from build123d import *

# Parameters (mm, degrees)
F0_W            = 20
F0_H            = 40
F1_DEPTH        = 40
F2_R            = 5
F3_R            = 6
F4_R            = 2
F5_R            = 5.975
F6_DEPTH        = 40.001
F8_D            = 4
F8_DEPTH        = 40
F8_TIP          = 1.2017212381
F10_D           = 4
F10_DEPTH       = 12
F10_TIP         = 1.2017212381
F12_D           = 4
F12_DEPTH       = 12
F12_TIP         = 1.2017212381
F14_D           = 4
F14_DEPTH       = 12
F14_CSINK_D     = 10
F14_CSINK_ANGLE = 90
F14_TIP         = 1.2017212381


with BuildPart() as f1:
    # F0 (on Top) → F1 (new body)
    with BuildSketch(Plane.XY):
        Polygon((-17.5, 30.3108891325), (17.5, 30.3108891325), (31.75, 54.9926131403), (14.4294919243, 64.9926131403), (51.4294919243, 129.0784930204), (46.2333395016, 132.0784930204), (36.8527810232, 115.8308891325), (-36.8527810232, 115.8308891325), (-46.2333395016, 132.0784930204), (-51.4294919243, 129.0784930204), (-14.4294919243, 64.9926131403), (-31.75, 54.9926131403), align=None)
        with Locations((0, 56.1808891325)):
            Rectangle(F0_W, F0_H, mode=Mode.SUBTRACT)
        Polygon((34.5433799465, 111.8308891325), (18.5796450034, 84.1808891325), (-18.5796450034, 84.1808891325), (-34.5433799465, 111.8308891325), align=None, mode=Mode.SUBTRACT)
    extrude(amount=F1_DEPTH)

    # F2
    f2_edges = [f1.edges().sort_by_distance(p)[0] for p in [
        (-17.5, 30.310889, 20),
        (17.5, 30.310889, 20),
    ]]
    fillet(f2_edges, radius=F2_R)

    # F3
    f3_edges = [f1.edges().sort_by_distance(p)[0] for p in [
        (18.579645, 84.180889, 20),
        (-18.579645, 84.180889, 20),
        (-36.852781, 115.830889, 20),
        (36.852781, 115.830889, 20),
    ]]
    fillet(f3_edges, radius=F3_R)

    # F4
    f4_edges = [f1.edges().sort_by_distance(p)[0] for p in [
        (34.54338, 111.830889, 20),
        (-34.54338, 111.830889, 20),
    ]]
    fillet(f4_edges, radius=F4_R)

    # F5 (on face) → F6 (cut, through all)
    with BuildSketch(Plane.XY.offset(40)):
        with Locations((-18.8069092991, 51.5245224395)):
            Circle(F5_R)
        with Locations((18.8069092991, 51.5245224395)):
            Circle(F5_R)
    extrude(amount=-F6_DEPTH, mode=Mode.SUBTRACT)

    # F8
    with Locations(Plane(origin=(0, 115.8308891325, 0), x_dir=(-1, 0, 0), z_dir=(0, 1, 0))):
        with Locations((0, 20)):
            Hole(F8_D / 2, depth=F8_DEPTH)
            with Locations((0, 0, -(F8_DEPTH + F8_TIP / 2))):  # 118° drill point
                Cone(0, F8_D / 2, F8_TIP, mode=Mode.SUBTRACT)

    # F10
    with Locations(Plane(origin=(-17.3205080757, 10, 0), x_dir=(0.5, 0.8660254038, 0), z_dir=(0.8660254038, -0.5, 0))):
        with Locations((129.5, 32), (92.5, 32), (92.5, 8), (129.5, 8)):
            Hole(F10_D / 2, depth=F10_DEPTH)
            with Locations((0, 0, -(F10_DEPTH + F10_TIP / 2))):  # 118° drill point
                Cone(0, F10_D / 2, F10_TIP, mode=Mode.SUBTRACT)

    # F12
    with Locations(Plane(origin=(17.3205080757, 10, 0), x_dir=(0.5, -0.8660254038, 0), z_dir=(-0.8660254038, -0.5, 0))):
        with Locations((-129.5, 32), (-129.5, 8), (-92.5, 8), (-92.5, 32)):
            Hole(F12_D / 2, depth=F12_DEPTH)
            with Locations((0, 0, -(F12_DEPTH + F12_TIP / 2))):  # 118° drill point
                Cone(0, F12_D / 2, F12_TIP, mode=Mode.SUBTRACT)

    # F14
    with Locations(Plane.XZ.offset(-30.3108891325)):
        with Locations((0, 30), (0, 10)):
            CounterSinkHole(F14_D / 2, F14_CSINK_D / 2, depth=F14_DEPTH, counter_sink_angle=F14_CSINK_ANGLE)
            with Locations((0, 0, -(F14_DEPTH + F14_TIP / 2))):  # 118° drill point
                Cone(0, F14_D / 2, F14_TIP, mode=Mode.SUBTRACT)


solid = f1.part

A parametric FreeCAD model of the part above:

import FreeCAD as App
import Part
import Sketcher

V = App.Vector
Q = App.Units.Quantity


def edges_at(feature, points):
    """Names of the edges that pass closest to the given points."""
    edges = feature.Shape.Edges
    near = lambda p: min(range(len(edges)), key=lambda i: edges[i].distToShape(Part.Vertex(*p))[0])
    return sorted({f"Edge{near(p) + 1}" for p in points})


def add_polygon(sketch, points):
    """Adds a closed chain of lines whose ends are joined by coincident constraints."""
    first, n = sketch.GeometryCount, len(points)
    for a, b in zip(points, points[1:] + points[:1]):
        sketch.addGeometry(Part.LineSegment(App.Vector(*a, 0), App.Vector(*b, 0)), False)
    for i in range(n):
        sketch.addConstraint(Sketcher.Constraint("Coincident", first + i, 2, first + (i + 1) % n, 1))

doc = App.newDocument("Part")
body = doc.addObject("PartDesign::Body", "Body")

sketch1 = doc.addObject("Sketcher::SketchObject", "Sketch")
body.addObject(sketch1)
sketch1.AttachmentSupport = (doc.XY_Plane, [""])
sketch1.MapMode = "FlatFace"
add_polygon(sketch1, [(-17.5, 30.310889), (17.5, 30.310889), (31.75, 54.992613), (14.429492, 64.992613), (51.429492, 129.078493), (46.23334, 132.078493), (36.852781, 115.830889), (-36.852781, 115.830889), (-46.23334, 132.078493), (-51.429492, 129.078493), (-14.429492, 64.992613), (-31.75, 54.992613)])
add_polygon(sketch1, [(10, 36.180889), (-10, 36.180889), (-10, 76.180889), (10, 76.180889)])
add_polygon(sketch1, [(-34.54338, 111.830889), (34.54338, 111.830889), (18.579645, 84.180889), (-18.579645, 84.180889)])
sketch1.addConstraint([
    Sketcher.Constraint("Horizontal", 0),
    Sketcher.Constraint("Horizontal", 6),
    Sketcher.Constraint("Horizontal", 12),
    Sketcher.Constraint("Vertical", 13),
    Sketcher.Constraint("Horizontal", 14),
    Sketcher.Constraint("Vertical", 15),
    Sketcher.Constraint("Horizontal", 16),
    Sketcher.Constraint("Horizontal", 18),
    Sketcher.Constraint("Symmetric", 4, 2, 7, 2, -2),
    Sketcher.Constraint("Symmetric", 3, 2, 8, 2, -2),
    Sketcher.Constraint("Symmetric", 2, 2, 9, 2, -2),
    Sketcher.Constraint("Symmetric", 1, 2, 10, 2, -2),
    Sketcher.Constraint("Perpendicular", 1, 2),
    Sketcher.Constraint("Perpendicular", 2, 3),
    Sketcher.Constraint("Perpendicular", 3, 4),
    Sketcher.Constraint("Perpendicular", 4, 5),
    Sketcher.Constraint("Perpendicular", 7, 8),
    Sketcher.Constraint("Perpendicular", 10, 11),
    Sketcher.Constraint("Parallel", 5, 17),
    Sketcher.Constraint("Parallel", 11, 19),
    Sketcher.Constraint("DistanceX", 0, 1, 0, 2, 35.0),
    Sketcher.Constraint("DistanceX", 12, 2, 12, 1, 20.0),
    Sketcher.Constraint("DistanceY", 13, 1, 13, 2, 40.0),
    Sketcher.Constraint("Angle", 1, Q("60 deg")),
    Sketcher.Constraint("Distance", 2, 20.0),
    Sketcher.Constraint("Distance", 3, 74.0),
    Sketcher.Constraint("Distance", 4, 6.0),
    Sketcher.Constraint("DistanceX", 12, 2, -1, 1, 10.0),
    Sketcher.Constraint("DistanceY", 16, 2, 5, 2, 4.0),
    Sketcher.Constraint("DistanceY", 14, 2, 17, 2, 8.0),
    Sketcher.Constraint("Distance", 1, 28.5),
    Sketcher.Constraint("DistanceY", 0, 2, 5, 2, 85.52),
    Sketcher.Constraint("DistanceY", 11, 2, 12, 2, 5.87),
    Sketcher.Constraint("DistanceX", 16, 1, 16, 2, 69.08676),
    Sketcher.Constraint("DistanceX", 16, 2, 5, 2, 2.309401),
    Sketcher.Constraint("DistanceY", -1, 1, 0, 2, 30.310889),
])
pad1 = doc.addObject("PartDesign::Pad", "Pad")
body.addObject(pad1)
pad1.Profile = sketch1
pad1.Length = 40
doc.recompute()

fillet = doc.addObject("PartDesign::Fillet", "Fillet")
body.addObject(fillet)
fillet.Base = (pad1, edges_at(pad1, [(-17.5, 30.311, 20), (17.5, 30.311, 20)]))
fillet.Radius = 5
doc.recompute()

fillet2 = doc.addObject("PartDesign::Fillet", "Fillet001")
body.addObject(fillet2)
fillet2.Base = (fillet, edges_at(fillet, [
    (18.58, 84.181, 20),
    (-18.58, 84.181, 20),
    (-36.853, 115.831, 20),
    (36.853, 115.831, 20),
]))
fillet2.Radius = 6
doc.recompute()

fillet3 = doc.addObject("PartDesign::Fillet", "Fillet002")
body.addObject(fillet3)
fillet3.Base = (fillet2, edges_at(fillet2, [(34.543, 111.831, 20), (-34.543, 111.831, 20)]))
fillet3.Radius = 2

sketch2 = doc.addObject("Sketcher::SketchObject", "Sketch001")
body.addObject(sketch2)
sketch2.AttachmentSupport = (doc.XY_Plane, [""])
sketch2.MapMode = "FlatFace"
sketch2.AttachmentOffset = App.Placement(V(0, 0, 40), App.Rotation())
sketch2.addGeometry([
    Part.Circle(V(-18.806909, 51.524522, 0), V(0, 0, 1), 5.975),
    Part.Circle(V(18.806909, 51.524522, 0), V(0, 0, 1), 5.975),
], False)
sketch2.addConstraint([
    Sketcher.Constraint("Equal", 0, 1),
    Sketcher.Constraint("Symmetric", 0, 3, 1, 3, -2),
    Sketcher.Constraint("Diameter", 0, 11.95),
    Sketcher.Constraint("DistanceX", 0, 3, -1, 1, 18.806909),
    Sketcher.Constraint("DistanceY", -1, 1, 0, 3, 51.524522),
])
pocket1 = doc.addObject("PartDesign::Pocket", "Pocket")
body.addObject(pocket1)
pocket1.Profile = sketch2
pocket1.Type = "ThroughAll"

sketch3 = doc.addObject("Sketcher::SketchObject", "Sketch002")
body.addObject(sketch3)
sketch3.AttachmentSupport = (doc.XZ_Plane, [""])
sketch3.MapMode = "FlatFace"
sketch3.AttachmentOffset = App.Placement(V(0, 0, -115.830889), App.Rotation())
sketch3.addGeometry(Part.Circle(V(0, 20, 0), V(0, 0, 1), 2), False)
sketch3.addConstraint([
    Sketcher.Constraint("PointOnObject", 0, 3, -2),
    Sketcher.Constraint("Diameter", 0, 4.0),
    Sketcher.Constraint("DistanceY", -1, 1, 0, 3, 20.0),
])
doc.recompute()
hole = doc.addObject("PartDesign::Hole", "Hole")
body.addObject(hole)
hole.Profile = sketch3
hole.ThreadType = "None"
hole.Diameter = 4
hole.DepthType = "Dimension"
hole.Depth = 40
hole.DrillPoint = "Angled"
hole.DrillPointAngle = 118
hole.Reversed = True

sketch4 = doc.addObject("Sketcher::SketchObject", "Sketch003")
body.addObject(sketch4)
sketch4.Placement = App.Placement(V(-17.320508, 10, 0), App.Rotation(V(0.5, 0.866025404, 0), V(0, 0, 1), V(0.866025404, -0.5, 0), "ZXY"))
sketch4.addGeometry([
    Part.Circle(V(129.5, 32, 0), V(0, 0, 1), 2),
    Part.Circle(V(92.5, 32, 0), V(0, 0, 1), 2),
    Part.Circle(V(92.5, 8, 0), V(0, 0, 1), 2),
    Part.Circle(V(129.5, 8, 0), V(0, 0, 1), 2),
], False)
sketch4.addConstraint([
    Sketcher.Constraint("Equal", 0, 1),
    Sketcher.Constraint("Equal", 1, 2),
    Sketcher.Constraint("Equal", 2, 3),
    Sketcher.Constraint("Horizontal", 0, 3, 1, 3),
    Sketcher.Constraint("Horizontal", 2, 3, 3, 3),
    Sketcher.Constraint("Vertical", 1, 3, 2, 3),
    Sketcher.Constraint("Vertical", 0, 3, 3, 3),
    Sketcher.Constraint("Diameter", 0, 4.0),
    Sketcher.Constraint("DistanceY", -1, 1, 0, 3, 32.0),
    Sketcher.Constraint("DistanceY", -1, 1, 2, 3, 8.0),
    Sketcher.Constraint("DistanceX", 1, 3, 0, 3, 37.0),
    Sketcher.Constraint("DistanceX", -1, 1, 0, 3, 129.5),
])
doc.recompute()
hole2 = doc.addObject("PartDesign::Hole", "Hole001")
body.addObject(hole2)
hole2.Profile = sketch4
hole2.ThreadType = "None"
hole2.Diameter = 4
hole2.DepthType = "Dimension"
hole2.Depth = 12
hole2.DrillPoint = "Angled"
hole2.DrillPointAngle = 118

sketch5 = doc.addObject("Sketcher::SketchObject", "Sketch004")
body.addObject(sketch5)
sketch5.Placement = App.Placement(V(17.320508, 10, 0), App.Rotation(V(0.5, -0.866025404, 0), V(0, 0, 1), V(-0.866025404, -0.5, 0), "ZXY"))
sketch5.addGeometry([
    Part.Circle(V(-129.5, 32, 0), V(0, 0, 1), 2),
    Part.Circle(V(-129.5, 8, 0), V(0, 0, 1), 2),
    Part.Circle(V(-92.5, 8, 0), V(0, 0, 1), 2),
    Part.Circle(V(-92.5, 32, 0), V(0, 0, 1), 2),
], False)
sketch5.addConstraint([
    Sketcher.Constraint("Equal", 0, 1),
    Sketcher.Constraint("Equal", 1, 2),
    Sketcher.Constraint("Equal", 2, 3),
    Sketcher.Constraint("Horizontal", 1, 3, 2, 3),
    Sketcher.Constraint("Horizontal", 0, 3, 3, 3),
    Sketcher.Constraint("Vertical", 0, 3, 1, 3),
    Sketcher.Constraint("Vertical", 2, 3, 3, 3),
    Sketcher.Constraint("Diameter", 0, 4.0),
    Sketcher.Constraint("DistanceY", -1, 1, 0, 3, 32.0),
    Sketcher.Constraint("DistanceY", -1, 1, 1, 3, 8.0),
    Sketcher.Constraint("DistanceX", 1, 3, 2, 3, 37.0),
    Sketcher.Constraint("DistanceX", 0, 3, -1, 1, 129.5),
])
doc.recompute()
hole3 = doc.addObject("PartDesign::Hole", "Hole002")
body.addObject(hole3)
hole3.Profile = sketch5
hole3.ThreadType = "None"
hole3.Diameter = 4
hole3.DepthType = "Dimension"
hole3.Depth = 12
hole3.DrillPoint = "Angled"
hole3.DrillPointAngle = 118

sketch6 = doc.addObject("Sketcher::SketchObject", "Sketch005")
body.addObject(sketch6)
sketch6.AttachmentSupport = (doc.XZ_Plane, [""])
sketch6.MapMode = "FlatFace"
sketch6.AttachmentOffset = App.Placement(V(0, 0, -30.310889), App.Rotation())
sketch6.addGeometry([
    Part.Circle(V(0, 30, 0), V(0, 0, 1), 2),
    Part.Circle(V(0, 10, 0), V(0, 0, 1), 2),
], False)
sketch6.addConstraint([
    Sketcher.Constraint("Equal", 0, 1),
    Sketcher.Constraint("PointOnObject", 0, 3, -2),
    Sketcher.Constraint("PointOnObject", 1, 3, -2),
    Sketcher.Constraint("Diameter", 0, 4.0),
    Sketcher.Constraint("DistanceY", -1, 1, 0, 3, 30.0),
    Sketcher.Constraint("DistanceY", -1, 1, 1, 3, 10.0),
])
doc.recompute()
hole4 = doc.addObject("PartDesign::Hole", "Hole003")
body.addObject(hole4)
hole4.Profile = sketch6
hole4.ThreadType = "None"
hole4.Diameter = 4
hole4.DepthType = "Dimension"
hole4.Depth = 12
hole4.DrillPoint = "Angled"
hole4.DrillPointAngle = 118
hole4.HoleCutType = "Countersink"
hole4.HoleCutDiameter = 10
hole4.HoleCutCountersinkAngle = 90

doc.recompute()
